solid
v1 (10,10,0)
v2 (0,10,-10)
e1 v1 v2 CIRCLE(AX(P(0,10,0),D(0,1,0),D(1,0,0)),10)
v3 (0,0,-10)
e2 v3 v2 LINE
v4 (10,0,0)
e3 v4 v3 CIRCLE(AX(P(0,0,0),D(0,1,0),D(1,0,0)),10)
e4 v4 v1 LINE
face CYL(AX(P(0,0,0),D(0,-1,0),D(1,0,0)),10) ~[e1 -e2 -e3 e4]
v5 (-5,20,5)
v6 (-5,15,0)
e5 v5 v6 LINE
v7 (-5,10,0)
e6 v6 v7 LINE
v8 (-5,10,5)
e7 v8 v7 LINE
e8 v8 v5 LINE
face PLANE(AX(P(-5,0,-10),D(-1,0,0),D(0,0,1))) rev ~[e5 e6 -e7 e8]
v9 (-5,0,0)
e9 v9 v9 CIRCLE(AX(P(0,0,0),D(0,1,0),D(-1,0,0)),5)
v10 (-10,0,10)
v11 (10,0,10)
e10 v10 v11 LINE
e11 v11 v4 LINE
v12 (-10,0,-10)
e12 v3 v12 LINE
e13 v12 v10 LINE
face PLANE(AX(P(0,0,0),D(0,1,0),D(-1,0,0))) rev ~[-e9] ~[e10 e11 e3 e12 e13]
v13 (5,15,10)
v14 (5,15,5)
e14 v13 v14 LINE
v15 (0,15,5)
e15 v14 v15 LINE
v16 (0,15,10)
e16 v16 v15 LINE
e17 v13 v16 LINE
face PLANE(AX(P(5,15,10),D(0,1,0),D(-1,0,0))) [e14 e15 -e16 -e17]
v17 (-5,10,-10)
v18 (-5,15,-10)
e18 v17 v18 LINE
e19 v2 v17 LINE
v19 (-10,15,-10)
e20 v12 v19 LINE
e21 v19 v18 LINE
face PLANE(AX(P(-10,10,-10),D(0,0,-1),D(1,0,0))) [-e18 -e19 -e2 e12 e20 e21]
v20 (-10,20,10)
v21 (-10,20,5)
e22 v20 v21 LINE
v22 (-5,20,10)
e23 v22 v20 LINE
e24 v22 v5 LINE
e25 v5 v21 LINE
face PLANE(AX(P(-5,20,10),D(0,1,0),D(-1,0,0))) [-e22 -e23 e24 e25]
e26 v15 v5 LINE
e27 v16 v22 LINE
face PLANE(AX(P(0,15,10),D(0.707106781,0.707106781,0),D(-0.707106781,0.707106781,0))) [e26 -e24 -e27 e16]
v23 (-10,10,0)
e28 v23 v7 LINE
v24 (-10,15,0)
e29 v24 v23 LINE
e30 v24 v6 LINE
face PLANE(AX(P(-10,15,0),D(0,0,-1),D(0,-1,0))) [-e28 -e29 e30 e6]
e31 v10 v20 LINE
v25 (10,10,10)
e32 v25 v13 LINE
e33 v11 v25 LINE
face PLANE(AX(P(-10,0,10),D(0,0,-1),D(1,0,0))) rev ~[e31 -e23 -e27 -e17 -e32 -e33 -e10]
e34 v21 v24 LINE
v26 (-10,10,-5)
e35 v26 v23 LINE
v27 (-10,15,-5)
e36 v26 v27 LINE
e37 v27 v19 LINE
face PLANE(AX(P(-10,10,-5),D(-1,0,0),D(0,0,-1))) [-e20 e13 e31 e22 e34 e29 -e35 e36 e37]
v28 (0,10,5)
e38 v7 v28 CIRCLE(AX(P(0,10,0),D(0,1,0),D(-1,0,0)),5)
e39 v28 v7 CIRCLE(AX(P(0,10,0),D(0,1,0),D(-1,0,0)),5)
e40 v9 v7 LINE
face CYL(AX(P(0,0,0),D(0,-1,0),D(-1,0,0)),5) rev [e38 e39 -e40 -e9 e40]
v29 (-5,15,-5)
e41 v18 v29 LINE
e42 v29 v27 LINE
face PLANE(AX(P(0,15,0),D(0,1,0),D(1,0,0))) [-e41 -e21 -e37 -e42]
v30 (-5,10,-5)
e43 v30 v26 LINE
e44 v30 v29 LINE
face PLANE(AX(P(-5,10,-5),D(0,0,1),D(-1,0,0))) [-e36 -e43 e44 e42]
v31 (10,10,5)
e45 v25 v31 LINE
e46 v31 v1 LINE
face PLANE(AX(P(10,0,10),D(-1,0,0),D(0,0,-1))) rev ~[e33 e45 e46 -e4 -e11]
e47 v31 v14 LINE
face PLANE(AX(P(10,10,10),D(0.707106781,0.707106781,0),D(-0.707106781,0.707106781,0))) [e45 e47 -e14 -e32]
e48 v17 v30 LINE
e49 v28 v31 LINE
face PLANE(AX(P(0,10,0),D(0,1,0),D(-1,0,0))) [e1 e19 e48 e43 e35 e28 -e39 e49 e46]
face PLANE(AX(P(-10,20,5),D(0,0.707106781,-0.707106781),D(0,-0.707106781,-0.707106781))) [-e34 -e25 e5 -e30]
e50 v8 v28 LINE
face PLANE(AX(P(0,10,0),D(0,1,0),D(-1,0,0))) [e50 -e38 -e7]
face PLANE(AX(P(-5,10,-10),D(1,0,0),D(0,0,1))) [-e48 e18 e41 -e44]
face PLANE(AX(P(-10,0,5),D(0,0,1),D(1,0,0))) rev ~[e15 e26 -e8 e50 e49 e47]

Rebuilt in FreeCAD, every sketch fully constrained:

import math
import FreeCAD as App
import Part
import Sketcher
from FreeCAD import Vector


def add_polygon(sketch, points):
    """Adds a closed chain of lines whose ends are joined by coincident constraints."""
    first, n = sketch.GeometryCount, len(points)
    for a, b in zip(points, points[1:] + points[:1]):
        sketch.addGeometry(Part.LineSegment(App.Vector(*a, 0), App.Vector(*b, 0)), False)
    for i in range(n):
        sketch.addConstraint(Sketcher.Constraint("Coincident", first + i, 2, first + (i + 1) % n, 1))

doc = App.newDocument("Part")
params = doc.addObject("Spreadsheet::Sheet", "Params")
for row, (alias, value) in enumerate([
    ("sketch1_diameter", "10 mm"),
    ("sketch1_radius", "10 mm"),
    ("pad1_length", "10 mm"),
    ("sketch2_width", "5 mm"),
    ("sketch2_height", "10 mm"),
    ("pad2_length", "5 mm"),
    ("sketch3_width", "5 mm"),
    ("pad3_length", "5 mm"),
    ("sketch4_width", "5 mm"),
    ("pad4_length", "5 mm"),
], start=1):
    params.set(f"A{row}", alias)
    params.set(f"B{row}", "=" + value)
    params.setAlias(f"B{row}", alias)

body = doc.addObject("PartDesign::Body", "Body")

sketch1 = body.newObject("Sketcher::SketchObject", "Sketch")
sketch1.AttachmentSupport = (doc.getObject("XZ_Plane"), [""])
sketch1.MapMode = "FlatFace"
sketch1.addGeometry([
    Part.LineSegment(Vector(-10, -10, 0), Vector(-10, 10, 0)),
    Part.LineSegment(Vector(-10, 10, 0), Vector(10, 10, 0)),
    Part.LineSegment(Vector(10, 10, 0), Vector(10, 0, 0)),
    Part.ArcOfCircle(Part.Circle(Vector(0, 0, 0), Vector(0, 0, 1), 10), math.radians(-90), math.radians(0)),
    Part.LineSegment(Vector(0, -10, 0), Vector(-10, -10, 0)),
    Part.Circle(Vector(0, 0, 0), Vector(0, 0, 1), 5),
], False)
sketch1.addConstraint([
    Sketcher.Constraint("Coincident", 0, 2, 1, 1),
    Sketcher.Constraint("Coincident", 1, 2, 2, 1),
    Sketcher.Constraint("Tangent", 2, 2, 3, 2),
    Sketcher.Constraint("Tangent", 3, 1, 4, 1),
    Sketcher.Constraint("Coincident", 4, 2, 0, 1),
    Sketcher.Constraint("Vertical", 0),
    Sketcher.Constraint("Horizontal", 1),
    Sketcher.Constraint("Vertical", 2),
    Sketcher.Constraint("Horizontal", 4),
    Sketcher.Constraint("Coincident", 3, 3, -1, 1),
    Sketcher.Constraint("Coincident", 5, 3, -1, 1),
    Sketcher.Constraint("Symmetric", 1, 2, 4, 2, -1, 1),
    Sketcher.Constraint("Diameter", 5, 10.0),
    Sketcher.Constraint("Radius", 3, 10.0),
])
sketch1.setExpression("Constraints[12]", "Params.sketch1_diameter")
sketch1.setExpression("Constraints[13]", "Params.sketch1_radius")
pad1 = body.newObject("PartDesign::Pad", "Pad")
pad1.Profile = sketch1
pad1.setExpression("Length", "Params.pad1_length")
pad1.Reversed = True

sketch2 = body.newObject("Sketcher::SketchObject", "Sketch001")
sketch2.AttachmentSupport = (doc.getObject("XY_Plane"), [""])
sketch2.MapMode = "FlatFace"
sketch2.AttachmentOffset = App.Placement(Vector(0, 0, 10), App.Rotation())
add_polygon(sketch2, [(-10, 20), (-10, 10), (10, 10), (5, 15), (0, 15), (-5, 20)])
sketch2.addConstraint([
    Sketcher.Constraint("Vertical", 0),
    Sketcher.Constraint("Horizontal", 1),
    Sketcher.Constraint("Horizontal", 3),
    Sketcher.Constraint("Horizontal", 5),
    Sketcher.Constraint("PointOnObject", 3, 2, -2),
    Sketcher.Constraint("Parallel", 2, 4),
    Sketcher.Constraint("Equal", 3, 5),
    Sketcher.Constraint("Equal", 2, 4),
    Sketcher.Constraint("DistanceX", 3, 2, 3, 1, 5.0),
    Sketcher.Constraint("DistanceY", 0, 2, 0, 1, 10.0),
    Sketcher.Constraint("DistanceX", 0, 2, -1, 1, 10.0),
    Sketcher.Constraint("DistanceY", -1, 1, 0, 2, 10.0),
])
sketch2.setExpression("Constraints[14]", "Params.sketch2_width")
sketch2.setExpression("Constraints[15]", "Params.sketch2_height")
pad2 = body.newObject("PartDesign::Pad", "Pad001")
pad2.Profile = sketch2
pad2.setExpression("Length", "Params.pad2_length")
pad2.Reversed = True

sketch3 = body.newObject("Sketcher::SketchObject", "Sketch002")
sketch3.AttachmentSupport = (doc.getObject("YZ_Plane"), [""])
sketch3.MapMode = "FlatFace"
sketch3.AttachmentOffset = App.Placement(Vector(0, 0, -10), App.Rotation())
add_polygon(sketch3, [(10, 0), (10, 5), (20, 5), (15, 0)])
sketch3.addConstraint([
    Sketcher.Constraint("Vertical", 0),
    Sketcher.Constraint("Horizontal", 1),
    Sketcher.Constraint("Horizontal", 3),
    Sketcher.Constraint("PointOnObject", 2, 2, -1),
    Sketcher.Constraint("Equal", 3, 0),
    Sketcher.Constraint("DistanceX", 3, 2, 3, 1, 5.0),
    Sketcher.Constraint("DistanceX", 2, 2, 1, 2, 5.0),
    Sketcher.Constraint("DistanceX", -1, 1, 0, 2, 10.0),
])
sketch3.setExpression("Constraints[9]", "Params.sketch3_width")
pad3 = body.newObject("PartDesign::Pad", "Pad002")
pad3.Profile = sketch3
pad3.setExpression("Length", "Params.pad3_length")

sketch4 = body.newObject("Sketcher::SketchObject", "Sketch003")
sketch4.AttachmentSupport = (doc.getObject("XZ_Plane"), [""])
sketch4.MapMode = "FlatFace"
sketch4.AttachmentOffset = App.Placement(Vector(0, 0, -10), App.Rotation())
add_polygon(sketch4, [(-5, -10), (-10, -10), (-10, -5), (-5, -5)])
sketch4.addConstraint([
    Sketcher.Constraint("Horizontal", 0),
    Sketcher.Constraint("Vertical", 1),
    Sketcher.Constraint("Horizontal", 2),
    Sketcher.Constraint("Vertical", 3),
    Sketcher.Constraint("Equal", 2, 1),
    Sketcher.Constraint("DistanceX", 0, 2, 0, 1, 5.0),
    Sketcher.Constraint("DistanceY", 1, 2, -1, 1, 5.0),
    Sketcher.Constraint("DistanceX", 2, 2, -1, 1, 5.0),
])
sketch4.setExpression("Constraints[9]", "Params.sketch4_width")
pad4 = body.newObject("PartDesign::Pad", "Pad003")
pad4.Profile = sketch4
pad4.setExpression("Length", "Params.pad4_length")
pad4.Reversed = True

doc.recompute()
